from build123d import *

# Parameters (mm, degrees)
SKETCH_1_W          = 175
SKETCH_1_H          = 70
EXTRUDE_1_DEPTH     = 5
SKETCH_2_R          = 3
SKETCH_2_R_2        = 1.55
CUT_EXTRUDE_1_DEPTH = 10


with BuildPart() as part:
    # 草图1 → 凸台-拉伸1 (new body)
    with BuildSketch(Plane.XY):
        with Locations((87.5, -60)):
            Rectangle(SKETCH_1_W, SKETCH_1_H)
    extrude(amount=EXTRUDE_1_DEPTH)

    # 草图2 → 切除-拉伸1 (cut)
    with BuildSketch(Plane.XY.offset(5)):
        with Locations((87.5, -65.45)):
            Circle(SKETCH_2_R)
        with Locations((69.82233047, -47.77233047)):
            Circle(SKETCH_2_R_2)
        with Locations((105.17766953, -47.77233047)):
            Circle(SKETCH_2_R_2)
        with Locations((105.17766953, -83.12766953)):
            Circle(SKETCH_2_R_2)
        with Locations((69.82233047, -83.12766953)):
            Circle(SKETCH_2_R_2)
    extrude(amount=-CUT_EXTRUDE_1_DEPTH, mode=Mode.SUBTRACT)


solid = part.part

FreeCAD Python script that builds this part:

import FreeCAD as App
import Part
import Sketcher

V = App.Vector
Q = App.Units.Quantity


def add_polygon(sketch, points):
    """Adds a closed chain of lines whose ends are joined by coincident constraints."""
    first, n = sketch.GeometryCount, len(points)
    for a, b in zip(points, points[1:] + points[:1]):
        sketch.addGeometry(Part.LineSegment(App.Vector(*a, 0), App.Vector(*b, 0)), False)
    for i in range(n):
        sketch.addConstraint(Sketcher.Constraint("Coincident", first + i, 2, first + (i + 1) % n, 1))

doc = App.newDocument("Part")
body = doc.addObject("PartDesign::Body", "Body")

sketch1 = body.newObject("Sketcher::SketchObject", "Sketch")
sketch1.AttachmentSupport = (doc.getObject("XY_Plane"), [""])
sketch1.MapMode = "FlatFace"
add_polygon(sketch1, [(0, -25), (0, -95), (175, -95), (175, -25)])
sketch1.addConstraint(Sketcher.Constraint("Vertical", 0))
sketch1.addConstraint(Sketcher.Constraint("Horizontal", 1))
sketch1.addConstraint(Sketcher.Constraint("Vertical", 2))
sketch1.addConstraint(Sketcher.Constraint("Horizontal", 3))
sketch1.addConstraint(Sketcher.Constraint("PointOnObject", 0, 2, -2))
sketch1.addConstraint(Sketcher.Constraint("DistanceX", 1, 1, 1, 2, Q("175 mm")))
sketch1.addConstraint(Sketcher.Constraint("DistanceY", 0, 2, 0, 1, Q("70 mm")))
sketch1.addConstraint(Sketcher.Constraint("DistanceY", 0, 2, -1, 1, Q("95 mm")))
pad1 = body.newObject("PartDesign::Pad", "Pad")
pad1.Profile = sketch1
pad1.Length = 5

sketch2 = body.newObject("Sketcher::SketchObject", "Sketch001")
sketch2.AttachmentSupport = (doc.getObject("XY_Plane"), [""])
sketch2.MapMode = "FlatFace"
sketch2.AttachmentOffset = App.Placement(V(0, 0, 5), App.Rotation())
sketch2.addGeometry(Part.Circle(V(87.5, -65.5, 0), V(0, 0, 1), 3), False)
sketch2.addGeometry(Part.Circle(V(69.8, -47.8, 0), V(0, 0, 1), 1.6), False)
sketch2.addGeometry(Part.Circle(V(105.2, -47.8, 0), V(0, 0, 1), 1.6), False)
sketch2.addGeometry(Part.Circle(V(105.2, -83.1, 0), V(0, 0, 1), 1.6), False)
sketch2.addGeometry(Part.Circle(V(69.8, -83.1, 0), V(0, 0, 1), 1.6), False)
sketch2.addConstraint(Sketcher.Constraint("Equal", 1, 2))
sketch2.addConstraint(Sketcher.Constraint("Equal", 2, 3))
sketch2.addConstraint(Sketcher.Constraint("Equal", 3, 4))
sketch2.addConstraint(Sketcher.Constraint("Horizontal", 1, 3, 2, 3))
sketch2.addConstraint(Sketcher.Constraint("Horizontal", 3, 3, 4, 3))
sketch2.addConstraint(Sketcher.Constraint("Vertical", 2, 3, 3, 3))
sketch2.addConstraint(Sketcher.Constraint("Vertical", 1, 3, 4, 3))
sketch2.addConstraint(Sketcher.Constraint("Diameter", 0, Q("6 mm")))
sketch2.addConstraint(Sketcher.Constraint("Diameter", 1, Q("3.1 mm")))
sketch2.addConstraint(Sketcher.Constraint("DistanceX", -1, 1, 0, 3, Q("87.5 mm")))
sketch2.addConstraint(Sketcher.Constraint("DistanceY", 0, 3, -1, 1, Q("65.45 mm")))
sketch2.addConstraint(Sketcher.Constraint("DistanceX", -1, 1, 1, 3, Q("69.82233 mm")))
sketch2.addConstraint(Sketcher.Constraint("DistanceY", 1, 3, -1, 1, Q("47.77233 mm")))
sketch2.addConstraint(Sketcher.Constraint("DistanceX", -1, 1, 2, 3, Q("105.17767 mm")))
sketch2.addConstraint(Sketcher.Constraint("DistanceY", 3, 3, -1, 1, Q("83.12767 mm")))
pocket1 = body.newObject("PartDesign::Pocket", "Pocket")
pocket1.Profile = sketch2
pocket1.Length = 10

doc.recompute()
